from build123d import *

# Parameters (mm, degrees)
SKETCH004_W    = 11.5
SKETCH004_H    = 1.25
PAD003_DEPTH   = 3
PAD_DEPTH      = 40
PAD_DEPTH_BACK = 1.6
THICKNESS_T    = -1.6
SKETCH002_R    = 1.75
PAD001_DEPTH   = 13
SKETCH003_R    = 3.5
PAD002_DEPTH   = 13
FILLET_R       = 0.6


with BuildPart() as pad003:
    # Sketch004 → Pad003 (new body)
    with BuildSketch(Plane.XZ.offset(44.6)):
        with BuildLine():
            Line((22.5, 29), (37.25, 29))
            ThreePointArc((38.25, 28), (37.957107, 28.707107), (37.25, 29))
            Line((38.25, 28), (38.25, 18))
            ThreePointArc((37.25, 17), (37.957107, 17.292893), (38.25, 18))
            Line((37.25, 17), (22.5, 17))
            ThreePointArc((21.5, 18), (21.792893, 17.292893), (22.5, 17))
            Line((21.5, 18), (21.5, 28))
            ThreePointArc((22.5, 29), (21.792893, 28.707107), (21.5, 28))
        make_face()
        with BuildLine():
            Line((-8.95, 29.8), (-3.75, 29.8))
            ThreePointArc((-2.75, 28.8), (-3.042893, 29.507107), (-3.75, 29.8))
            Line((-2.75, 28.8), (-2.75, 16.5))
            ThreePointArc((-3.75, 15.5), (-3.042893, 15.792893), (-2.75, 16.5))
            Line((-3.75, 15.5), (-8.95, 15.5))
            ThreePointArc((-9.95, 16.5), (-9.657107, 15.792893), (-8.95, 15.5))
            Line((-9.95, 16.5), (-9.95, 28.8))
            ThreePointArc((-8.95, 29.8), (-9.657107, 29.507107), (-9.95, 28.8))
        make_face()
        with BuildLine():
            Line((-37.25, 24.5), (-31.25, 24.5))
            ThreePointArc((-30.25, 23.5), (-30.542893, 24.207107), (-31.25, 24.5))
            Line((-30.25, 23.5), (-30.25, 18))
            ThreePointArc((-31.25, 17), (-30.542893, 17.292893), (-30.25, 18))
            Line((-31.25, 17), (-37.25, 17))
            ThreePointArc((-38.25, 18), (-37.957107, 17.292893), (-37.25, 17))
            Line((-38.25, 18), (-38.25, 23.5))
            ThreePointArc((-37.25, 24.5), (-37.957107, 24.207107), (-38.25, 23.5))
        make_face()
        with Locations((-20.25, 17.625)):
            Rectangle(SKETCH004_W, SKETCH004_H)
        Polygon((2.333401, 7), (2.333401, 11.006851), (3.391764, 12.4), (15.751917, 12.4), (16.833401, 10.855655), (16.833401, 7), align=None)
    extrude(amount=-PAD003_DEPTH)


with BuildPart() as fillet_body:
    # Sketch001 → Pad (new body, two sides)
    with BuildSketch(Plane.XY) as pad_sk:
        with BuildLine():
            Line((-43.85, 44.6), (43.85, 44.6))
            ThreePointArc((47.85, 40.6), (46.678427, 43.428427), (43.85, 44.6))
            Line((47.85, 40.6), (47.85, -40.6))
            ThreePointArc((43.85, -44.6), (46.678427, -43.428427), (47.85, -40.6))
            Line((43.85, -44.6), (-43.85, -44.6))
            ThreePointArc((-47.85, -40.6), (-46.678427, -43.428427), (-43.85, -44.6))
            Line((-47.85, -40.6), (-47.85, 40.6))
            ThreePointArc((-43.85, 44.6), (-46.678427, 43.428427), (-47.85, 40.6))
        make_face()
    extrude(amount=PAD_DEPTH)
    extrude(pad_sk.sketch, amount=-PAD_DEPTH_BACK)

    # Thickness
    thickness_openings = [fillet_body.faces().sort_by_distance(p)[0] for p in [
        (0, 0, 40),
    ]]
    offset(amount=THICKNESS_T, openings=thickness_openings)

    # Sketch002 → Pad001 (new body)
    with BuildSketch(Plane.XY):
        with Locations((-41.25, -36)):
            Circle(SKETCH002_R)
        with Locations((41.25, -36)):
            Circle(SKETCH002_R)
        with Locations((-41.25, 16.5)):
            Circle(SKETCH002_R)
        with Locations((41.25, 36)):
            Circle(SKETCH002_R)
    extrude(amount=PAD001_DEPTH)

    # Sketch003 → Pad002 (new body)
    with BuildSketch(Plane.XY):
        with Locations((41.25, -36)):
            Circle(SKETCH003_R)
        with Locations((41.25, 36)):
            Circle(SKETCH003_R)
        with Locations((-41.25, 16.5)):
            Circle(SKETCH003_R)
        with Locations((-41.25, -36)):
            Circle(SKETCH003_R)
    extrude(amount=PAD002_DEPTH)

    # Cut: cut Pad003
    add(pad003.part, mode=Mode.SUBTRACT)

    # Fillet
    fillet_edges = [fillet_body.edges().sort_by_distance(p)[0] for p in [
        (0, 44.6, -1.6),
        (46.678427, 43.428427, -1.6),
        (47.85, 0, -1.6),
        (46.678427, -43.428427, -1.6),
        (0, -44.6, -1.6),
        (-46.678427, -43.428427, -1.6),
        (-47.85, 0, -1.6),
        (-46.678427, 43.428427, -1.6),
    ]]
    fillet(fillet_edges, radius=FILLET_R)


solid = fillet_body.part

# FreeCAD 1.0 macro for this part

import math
import FreeCAD as App
import Part
import Sketcher
from FreeCAD import Vector


def edges_at(feature, points):
    """Names of the edges that pass closest to the given points."""
    edges = feature.Shape.Edges
    near = lambda p: min(range(len(edges)), key=lambda i: edges[i].distToShape(Part.Vertex(*p))[0])
    return sorted({f"Edge{near(p) + 1}" for p in points})


def faces_at(feature, points):
    """Names of the faces that lie closest to the given points."""
    faces = feature.Shape.Faces
    near = lambda p: min(range(len(faces)), key=lambda i: faces[i].distToShape(Part.Vertex(*p))[0])
    return sorted({f"Face{near(p) + 1}" for p in points})

doc = App.newDocument("Part")
body = doc.addObject("PartDesign::Body", "Body")
body.AllowCompound = True

# Sketch on XZ plane
sketch1 = doc.addObject("Sketcher::SketchObject", "Sketch")
body.addObject(sketch1)
sketch1.AttachmentSupport = (doc.XZ_Plane, [""])
sketch1.MapMode = "FlatFace"
sketch1.AttachmentOffset = App.Placement(Vector(0, 0, 44.6), App.Rotation())
sketch1.addGeometry([
    Part.LineSegment(Vector(37.2, 29, 0), Vector(22.5, 29, 0)),  # 0
    Part.ArcOfCircle(Part.Circle(Vector(22.5, 28, 0), Vector(0, 0, 1), 1), math.radians(90), math.radians(180)),  # 1
    Part.LineSegment(Vector(21.5, 28, 0), Vector(21.5, 18, 0)),  # 2
    Part.ArcOfCircle(Part.Circle(Vector(22.5, 18, 0), Vector(0, 0, 1), 1), math.radians(180), math.radians(270)),  # 3
    Part.LineSegment(Vector(22.5, 17, 0), Vector(37.2, 17, 0)),  # 4
    Part.ArcOfCircle(Part.Circle(Vector(37.3, 18, 0), Vector(0, 0, 1), 1), math.radians(-90), math.radians(0)),  # 5
    Part.LineSegment(Vector(38.2, 18, 0), Vector(38.2, 28, 0)),  # 6
    Part.ArcOfCircle(Part.Circle(Vector(37.3, 28, 0), Vector(0, 0, 1), 1), math.radians(0), math.radians(90)),  # 7
    Part.LineSegment(Vector(-3.8, 29.8, 0), Vector(-8.9, 29.8, 0)),  # 8
    Part.ArcOfCircle(Part.Circle(Vector(-9, 28.8, 0), Vector(0, 0, 1), 1), math.radians(90), math.radians(180)),  # 9
    Part.LineSegment(Vector(-9.9, 28.8, 0), Vector(-9.9, 16.5, 0)),  # 10
    Part.ArcOfCircle(Part.Circle(Vector(-9, 16.5, 0), Vector(0, 0, 1), 1), math.radians(180), math.radians(270)),  # 11
    Part.LineSegment(Vector(-8.9, 15.5, 0), Vector(-3.8, 15.5, 0)),  # 12
    Part.ArcOfCircle(Part.Circle(Vector(-3.7, 16.5, 0), Vector(0, 0, 1), 1), math.radians(-90), math.radians(0)),  # 13
    Part.LineSegment(Vector(-2.8, 16.5, 0), Vector(-2.8, 28.8, 0)),  # 14
    Part.ArcOfCircle(Part.Circle(Vector(-3.7, 28.8, 0), Vector(0, 0, 1), 1), math.radians(0), math.radians(90)),  # 15
    Part.LineSegment(Vector(-31.2, 24.5, 0), Vector(-37.2, 24.5, 0)),  # 16
    Part.ArcOfCircle(Part.Circle(Vector(-37.3, 23.5, 0), Vector(0, 0, 1), 1), math.radians(90), math.radians(180)),  # 17
    Part.LineSegment(Vector(-38.2, 23.5, 0), Vector(-38.2, 18, 0)),  # 18
    Part.ArcOfCircle(Part.Circle(Vector(-37.3, 18, 0), Vector(0, 0, 1), 1), math.radians(180), math.radians(270)),  # 19
    Part.LineSegment(Vector(-37.2, 17, 0), Vector(-31.2, 17, 0)),  # 20
    Part.ArcOfCircle(Part.Circle(Vector(-31.2, 18, 0), Vector(0, 0, 1), 1), math.radians(-90), math.radians(0)),  # 21
    Part.LineSegment(Vector(-30.2, 18, 0), Vector(-30.2, 23.5, 0)),  # 22
    Part.ArcOfCircle(Part.Circle(Vector(-31.2, 23.5, 0), Vector(0, 0, 1), 1), math.radians(0), math.radians(90)),  # 23
    Part.LineSegment(Vector(-26, 18.2, 0), Vector(-26, 17, 0)),  # 24
    Part.LineSegment(Vector(-26, 17, 0), Vector(-14.5, 17, 0)),  # 25
    Part.LineSegment(Vector(-14.5, 17, 0), Vector(-14.5, 18.2, 0)),  # 26
    Part.LineSegment(Vector(-14.5, 18.2, 0), Vector(-26, 18.2, 0)),  # 27
    Part.LineSegment(Vector(2.3, 11, 0), Vector(2.3, 7, 0)),  # 28
    Part.LineSegment(Vector(2.3, 7, 0), Vector(16.8, 7, 0)),  # 29
    Part.LineSegment(Vector(16.8, 7, 0), Vector(16.8, 10.9, 0)),  # 30
    Part.LineSegment(Vector(16.8, 10.9, 0), Vector(15.8, 12.4, 0)),  # 31
    Part.LineSegment(Vector(15.8, 12.4, 0), Vector(3.4, 12.4, 0)),  # 32
    Part.LineSegment(Vector(3.4, 12.4, 0), Vector(2.3, 11, 0)),  # 33
], False)
sketch1.addConstraint([
    Sketcher.Constraint("Tangent", 0, 2, 1, 1),
    Sketcher.Constraint("Tangent", 1, 2, 2, 1),
    Sketcher.Constraint("Tangent", 2, 2, 3, 1),
    Sketcher.Constraint("Tangent", 3, 2, 4, 1),
    Sketcher.Constraint("Tangent", 4, 2, 5, 1),
    Sketcher.Constraint("Tangent", 5, 2, 6, 1),
    Sketcher.Constraint("Tangent", 6, 2, 7, 1),
    Sketcher.Constraint("Tangent", 7, 2, 0, 1),
    Sketcher.Constraint("Tangent", 8, 2, 9, 1),
    Sketcher.Constraint("Tangent", 9, 2, 10, 1),
    Sketcher.Constraint("Tangent", 10, 2, 11, 1),
    Sketcher.Constraint("Tangent", 11, 2, 12, 1),
    Sketcher.Constraint("Tangent", 12, 2, 13, 1),
    Sketcher.Constraint("Tangent", 13, 2, 14, 1),
    Sketcher.Constraint("Tangent", 14, 2, 15, 1),
    Sketcher.Constraint("Tangent", 15, 2, 8, 1),
    Sketcher.Constraint("Tangent", 16, 2, 17, 1),
    Sketcher.Constraint("Tangent", 17, 2, 18, 1),
    Sketcher.Constraint("Tangent", 18, 2, 19, 1),
    Sketcher.Constraint("Tangent", 19, 2, 20, 1),
    Sketcher.Constraint("Tangent", 20, 2, 21, 1),
    Sketcher.Constraint("Tangent", 21, 2, 22, 1),
    Sketcher.Constraint("Tangent", 22, 2, 23, 1),
    Sketcher.Constraint("Tangent", 23, 2, 16, 1),
    Sketcher.Constraint("Coincident", 24, 2, 25, 1),
    Sketcher.Constraint("Coincident", 25, 2, 26, 1),
    Sketcher.Constraint("Coincident", 26, 2, 27, 1),
    Sketcher.Constraint("Coincident", 27, 2, 24, 1),
    Sketcher.Constraint("Coincident", 28, 2, 29, 1),
    Sketcher.Constraint("Coincident", 29, 2, 30, 1),
    Sketcher.Constraint("Coincident", 30, 2, 31, 1),
    Sketcher.Constraint("Coincident", 31, 2, 32, 1),
    Sketcher.Constraint("Coincident", 32, 2, 33, 1),
    Sketcher.Constraint("Coincident", 33, 2, 28, 1),
    Sketcher.Constraint("Horizontal", 0),
    Sketcher.Constraint("Vertical", 2),
    Sketcher.Constraint("Horizontal", 4),
    Sketcher.Constraint("Vertical", 6),
    Sketcher.Constraint("Horizontal", 8),
    Sketcher.Constraint("Vertical", 10),
    Sketcher.Constraint("Horizontal", 12),
    Sketcher.Constraint("Vertical", 14),
    Sketcher.Constraint("Horizontal", 16),
    Sketcher.Constraint("Vertical", 18),
    Sketcher.Constraint("Horizontal", 20),
    Sketcher.Constraint("Vertical", 22),
    Sketcher.Constraint("Vertical", 24),
    Sketcher.Constraint("Horizontal", 25),
    Sketcher.Constraint("Vertical", 26),
    Sketcher.Constraint("Horizontal", 27),
    Sketcher.Constraint("Vertical", 28),
    Sketcher.Constraint("Horizontal", 29),
    Sketcher.Constraint("Vertical", 30),
    Sketcher.Constraint("Horizontal", 32),
    Sketcher.Constraint("Equal", 1, 3),
    Sketcher.Constraint("Equal", 3, 5),
    Sketcher.Constraint("Equal", 5, 7),
    Sketcher.Constraint("Equal", 7, 9),
    Sketcher.Constraint("Equal", 9, 11),
    Sketcher.Constraint("Equal", 11, 13),
    Sketcher.Constraint("Equal", 13, 15),
    Sketcher.Constraint("Equal", 15, 17),
    Sketcher.Constraint("Equal", 17, 19),
    Sketcher.Constraint("Equal", 19, 21),
    Sketcher.Constraint("Equal", 21, 23),
    Sketcher.Constraint("Symmetric", 5, 3, 19, 3, -2),
    Sketcher.Constraint("Horizontal", 20, 2, 24, 2),
    Sketcher.Constraint("Radius", 1, 0.999999),
    Sketcher.Constraint("DistanceX", 16, 2, 16, 1, 6.0),
    Sketcher.Constraint("DistanceY", 2, 2, 2, 1, 10.0),
    Sketcher.Constraint("DistanceX", 8, 2, 8, 1, 5.2),
    Sketcher.Constraint("DistanceX", 25, 1, 25, 2, 11.5),
    Sketcher.Constraint("DistanceX", 29, 1, 29, 2, 14.5),
    Sketcher.Constraint("DistanceY", 10, 2, 10, 1, 12.3),
    Sketcher.Constraint("DistanceY", 18, 2, 18, 1, 5.5),
    Sketcher.Constraint("DistanceY", -1, 1, 1, 3, 28.000001),
    Sketcher.Constraint("DistanceX", 24, 2, -1, 1, 26.0),
    Sketcher.Constraint("DistanceY", -1, 1, 28, 2, 7.0),
    Sketcher.Constraint("DistanceX", 13, 3, 5, 3, 41.0),
    Sketcher.Constraint("DistanceY", 11, 3, 17, 3, 7.000001),
    Sketcher.Constraint("DistanceX", 0, 2, 0, 1, 14.75),
    Sketcher.Constraint("DistanceY", 24, 2, 24, 1, 1.25),
    Sketcher.Constraint("DistanceX", -1, 1, 1, 3, 22.499999),
    Sketcher.Constraint("DistanceY", -1, 1, 31, 2, 12.4),
    Sketcher.Constraint("DistanceY", 28, 2, 28, 1, 4.006851),
    Sketcher.Constraint("DistanceX", -1, 1, 28, 2, 2.333401),
    Sketcher.Constraint("Distance", 33, 1.74957),
    Sketcher.Constraint("DistanceX", 32, 2, 32, 1, 12.360153),
    Sketcher.Constraint("DistanceY", 30, 1, 30, 2, 3.855655),
])
pad1 = doc.addObject("PartDesign::Pad", "Pad")
body.addObject(pad1)
pad1.Profile = sketch1
pad1.Length = 3
pad1.Reversed = True
body2 = doc.addObject("PartDesign::Body", "Body001")

# Sketch on XY plane
sketch2 = doc.addObject("Sketcher::SketchObject", "Sketch001")
body2.addObject(sketch2)
sketch2.AttachmentSupport = (doc.getObject("XY_Plane001"), [""])
sketch2.MapMode = "FlatFace"
sketch2.addGeometry([
    Part.LineSegment(Vector(43.9, 44.6, 0), Vector(-43.9, 44.6, 0)),  # 0
    Part.ArcOfCircle(Part.Circle(Vector(-43.8, 40.6, 0), Vector(0, 0, 1), 4), math.radians(90), math.radians(180)),  # 1
    Part.LineSegment(Vector(-47.9, 40.6, 0), Vector(-47.9, -40.6, 0)),  # 2
    Part.ArcOfCircle(Part.Circle(Vector(-43.8, -40.6, 0), Vector(0, 0, 1), 4), math.radians(-180), math.radians(-90)),  # 3
    Part.LineSegment(Vector(-43.9, -44.6, 0), Vector(43.9, -44.6, 0)),  # 4
    Part.ArcOfCircle(Part.Circle(Vector(43.8, -40.6, 0), Vector(0, 0, 1), 4), math.radians(-90), math.radians(0)),  # 5
    Part.LineSegment(Vector(47.9, -40.6, 0), Vector(47.9, 40.6, 0)),  # 6
    Part.ArcOfCircle(Part.Circle(Vector(43.8, 40.6, 0), Vector(0, 0, 1), 4), math.radians(0), math.radians(90)),  # 7
], False)
sketch2.addConstraint([
    Sketcher.Constraint("Tangent", 0, 2, 1, 1),
    Sketcher.Constraint("Tangent", 1, 2, 2, 1),
    Sketcher.Constraint("Tangent", 2, 2, 3, 1),
    Sketcher.Constraint("Tangent", 3, 2, 4, 1),
    Sketcher.Constraint("Tangent", 4, 2, 5, 1),
    Sketcher.Constraint("Tangent", 5, 2, 6, 1),
    Sketcher.Constraint("Tangent", 6, 2, 7, 1),
    Sketcher.Constraint("Tangent", 7, 2, 0, 1),
    Sketcher.Constraint("Horizontal", 0),
    Sketcher.Constraint("Vertical", 2),
    Sketcher.Constraint("Horizontal", 4),
    Sketcher.Constraint("Vertical", 6),
    Sketcher.Constraint("Equal", 1, 3),
    Sketcher.Constraint("Equal", 3, 5),
    Sketcher.Constraint("Equal", 5, 7),
    Sketcher.Constraint("Symmetric", 1, 3, 5, 3, -1, 1),
    Sketcher.Constraint("Radius", 1, 4.0),
    Sketcher.Constraint("DistanceX", 0, 2, 0, 1, 87.7),
    Sketcher.Constraint("DistanceY", 2, 2, 2, 1, 81.2),
])
pad2 = doc.addObject("PartDesign::Pad", "Pad001")
body2.addObject(pad2)
pad2.Profile = sketch2
pad2.Type = "TwoLengths"
pad2.Length = 40
pad2.Length2 = 1.6
doc.recompute()

thickness = doc.addObject("PartDesign::Thickness", "Thickness")
body2.addObject(thickness)
thickness.Base = (pad2, faces_at(pad2, [(0, 0, 40)]))
thickness.Value = 1.6
thickness.Reversed = True
thickness.Join = "Arc"

# Sketch on XY plane
sketch3 = doc.addObject("Sketcher::SketchObject", "Sketch002")
body2.addObject(sketch3)
sketch3.AttachmentSupport = (doc.getObject("XY_Plane001"), [""])
sketch3.MapMode = "FlatFace"
sketch3.addGeometry([
    Part.Circle(Vector(-41.2, -36, 0), Vector(0, 0, 1), 1.8),
    Part.Circle(Vector(41.2, -36, 0), Vector(0, 0, 1), 1.8),
    Part.Circle(Vector(-41.2, 16.5, 0), Vector(0, 0, 1), 1.8),
    Part.Circle(Vector(41.2, 36, 0), Vector(0, 0, 1), 1.8),
], False)
sketch3.addConstraint([
    Sketcher.Constraint("Equal", 0, 1),
    Sketcher.Constraint("Equal", 1, 2),
    Sketcher.Constraint("Equal", 2, 3),
    Sketcher.Constraint("Symmetric", 0, 3, 3, 3, -1, 1),
    Sketcher.Constraint("Symmetric", 0, 3, 1, 3, -2),
    Sketcher.Constraint("Vertical", 0, 3, 2, 3),
    Sketcher.Constraint("Diameter", 0, 3.5),
    Sketcher.Constraint("DistanceY", 0, 3, -1, 1, 36.0),
    Sketcher.Constraint("DistanceY", -1, 1, 2, 3, 16.5),
    Sketcher.Constraint("DistanceX", 0, 3, 1, 3, 82.5),
])
pad3 = doc.addObject("PartDesign::Pad", "Pad002")
body2.addObject(pad3)
pad3.Profile = sketch3
pad3.Length = 13

# Sketch on XY plane
sketch4 = doc.addObject("Sketcher::SketchObject", "Sketch003")
body2.addObject(sketch4)
sketch4.AttachmentSupport = (doc.getObject("XY_Plane001"), [""])
sketch4.MapMode = "FlatFace"
sketch4.addGeometry([
    Part.Circle(Vector(41.2, -36, 0), Vector(0, 0, 1), 3.5),
    Part.Circle(Vector(41.2, 36, 0), Vector(0, 0, 1), 3.5),
    Part.Circle(Vector(-41.2, 16.5, 0), Vector(0, 0, 1), 3.5),
    Part.Circle(Vector(-41.2, -36, 0), Vector(0, 0, 1), 3.5),
], False)
sketch4.addConstraint([
    Sketcher.Constraint("Equal", 0, 1),
    Sketcher.Constraint("Equal", 1, 2),
    Sketcher.Constraint("Equal", 2, 3),
    Sketcher.Constraint("Symmetric", 1, 3, 3, 3, -1, 1),
    Sketcher.Constraint("Symmetric", 0, 3, 3, 3, -2),
    Sketcher.Constraint("Vertical", 2, 3, 3, 3),
    Sketcher.Constraint("Diameter", 0, 7.0),
    Sketcher.Constraint("DistanceY", 0, 3, -1, 1, 36.0),
    Sketcher.Constraint("DistanceY", -1, 1, 2, 3, 16.5),
    Sketcher.Constraint("DistanceX", 2, 3, 1, 3, 82.5),
])
pad4 = doc.addObject("PartDesign::Pad", "Pad003")
body2.addObject(pad4)
pad4.Profile = sketch4
pad4.Length = 13
doc.recompute()

boolean = doc.addObject("PartDesign::Boolean", "Boolean")
body2.addObject(boolean)
boolean.Type = "Cut"
boolean.addObjects([body])
doc.recompute()

fillet = doc.addObject("PartDesign::Fillet", "Fillet")
body2.addObject(fillet)
fillet.Base = (boolean, edges_at(boolean, [
    (0, 44.6, -1.6),
    (46.678, 43.428, -1.6),
    (47.85, 0, -1.6),
    (46.678, -43.428, -1.6),
    (0, -44.6, -1.6),
    (-46.678, -43.428, -1.6),
    (-47.85, 0, -1.6),
    (-46.678, 43.428, -1.6),
]))
fillet.Radius = 0.6

doc.recompute()
